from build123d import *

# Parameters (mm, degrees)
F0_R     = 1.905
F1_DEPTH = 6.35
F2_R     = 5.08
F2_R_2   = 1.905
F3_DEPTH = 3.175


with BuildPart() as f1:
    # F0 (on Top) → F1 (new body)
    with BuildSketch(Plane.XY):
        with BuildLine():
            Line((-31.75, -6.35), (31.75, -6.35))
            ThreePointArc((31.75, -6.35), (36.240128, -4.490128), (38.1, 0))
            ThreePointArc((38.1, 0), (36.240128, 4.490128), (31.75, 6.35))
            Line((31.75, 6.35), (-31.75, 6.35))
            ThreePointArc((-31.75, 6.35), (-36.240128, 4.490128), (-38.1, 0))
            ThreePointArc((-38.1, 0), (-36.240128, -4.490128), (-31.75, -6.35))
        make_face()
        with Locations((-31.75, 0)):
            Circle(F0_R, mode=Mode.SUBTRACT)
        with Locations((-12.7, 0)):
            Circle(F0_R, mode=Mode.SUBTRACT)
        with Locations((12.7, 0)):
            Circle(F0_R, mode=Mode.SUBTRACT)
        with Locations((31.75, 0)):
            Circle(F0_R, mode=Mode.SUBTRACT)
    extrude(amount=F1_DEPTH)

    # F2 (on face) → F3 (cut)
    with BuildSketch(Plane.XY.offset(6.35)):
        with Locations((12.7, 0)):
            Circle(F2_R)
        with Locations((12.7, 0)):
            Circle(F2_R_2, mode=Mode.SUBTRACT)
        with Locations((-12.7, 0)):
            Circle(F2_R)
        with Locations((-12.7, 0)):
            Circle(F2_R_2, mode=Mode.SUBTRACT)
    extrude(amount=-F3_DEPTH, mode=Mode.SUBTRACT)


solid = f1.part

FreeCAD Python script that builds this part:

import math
import FreeCAD as App
import Part
import Sketcher

V = App.Vector
Q = App.Units.Quantity

doc = App.newDocument("Part")
params = doc.addObject("Spreadsheet::Sheet", "Params")
for row, (alias, value) in enumerate([
    ("sketch1_diameter", "0.15 in"),
    ("sketch1_radius", "0.25 in"),
    ("sketch1_width", "2.5 in"),
    ("pad1_length", "0.25 in"),
    ("sketch2_diameter", "0.4 in"),
    ("sketch2_diameter2", "0.15 in"),
    ("pocket1_length", "0.125 in"),
], start=1):
    params.set(f"A{row}", alias)
    params.set(f"B{row}", "=" + value)
    params.setAlias(f"B{row}", alias)

body = doc.addObject("PartDesign::Body", "Body")

# Sketch on XY plane
sketch1 = body.newObject("Sketcher::SketchObject", "Sketch")
sketch1.AttachmentSupport = (doc.getObject("XY_Plane"), [""])
sketch1.MapMode = "FlatFace"
sketch1.addGeometry([
    Part.LineSegment(V(-31.8, -6.3, 0), V(31.8, -6.3, 0)),  # 0
    Part.ArcOfCircle(Part.Circle(V(31.7, 0, 0), V(0, 0, 1), 6.4), math.radians(-90), math.radians(0)),  # 1
    Part.ArcOfCircle(Part.Circle(V(31.7, 0, 0), V(0, 0, 1), 6.4), math.radians(0), math.radians(90)),  # 2
    Part.LineSegment(V(31.8, 6.3, 0), V(-31.8, 6.3, 0)),  # 3
    Part.ArcOfCircle(Part.Circle(V(-31.7, 0, 0), V(0, 0, 1), 6.4), math.radians(90), math.radians(180)),  # 4
    Part.ArcOfCircle(Part.Circle(V(-31.7, 0, 0), V(0, 0, 1), 6.4), math.radians(-180), math.radians(-90)),  # 5
    Part.Circle(V(-31.8, 0, 0), V(0, 0, 1), 1.9),  # 6
    Part.Circle(V(-12.7, 0, 0), V(0, 0, 1), 1.9),  # 7
    Part.Circle(V(12.7, 0, 0), V(0, 0, 1), 1.9),  # 8
    Part.Circle(V(31.8, 0, 0), V(0, 0, 1), 1.9),  # 9
], False)
sketch1.addConstraint([
    Sketcher.Constraint("Tangent", 0, 2, 1, 1),
    Sketcher.Constraint("Tangent", 1, 2, 2, 1),
    Sketcher.Constraint("Tangent", 2, 2, 3, 1),
    Sketcher.Constraint("Tangent", 3, 2, 4, 1),
    Sketcher.Constraint("Tangent", 4, 2, 5, 1),
    Sketcher.Constraint("Tangent", 5, 2, 0, 1),
    Sketcher.Constraint("Horizontal", 0),
    Sketcher.Constraint("Horizontal", 3),
    Sketcher.Constraint("Coincident", 6, 3, 4, 3),
    Sketcher.Constraint("Coincident", 9, 3, 1, 3),
    Sketcher.Constraint("Equal", 1, 2),
    Sketcher.Constraint("Equal", 2, 4),
    Sketcher.Constraint("Equal", 6, 7),
    Sketcher.Constraint("Equal", 7, 8),
    Sketcher.Constraint("Equal", 8, 9),
    Sketcher.Constraint("Symmetric", 1, 3, 4, 3, -1, 1),
    Sketcher.Constraint("Symmetric", 7, 3, 8, 3, -1, 1),
    Sketcher.Constraint("PointOnObject", 7, 3, -1),
    Sketcher.Constraint("PointOnObject", 1, 2, -1),
    Sketcher.Constraint("PointOnObject", 4, 2, -1),
    Sketcher.Constraint("Diameter", 6, Q("0.15 in")),
    Sketcher.Constraint("Radius", 1, Q("0.25 in")),
    Sketcher.Constraint("DistanceX", 0, 1, 0, 2, Q("2.5 in")),
    Sketcher.Constraint("DistanceX", 7, 3, 8, 3, Q("1 in")),
])
sketch1.setExpression("Constraints[20]", "Params.sketch1_diameter")
sketch1.setExpression("Constraints[21]", "Params.sketch1_radius")
sketch1.setExpression("Constraints[22]", "Params.sketch1_width")
pad1 = body.newObject("PartDesign::Pad", "Pad")
pad1.Profile = sketch1
pad1.setExpression("Length", "Params.pad1_length")

# Sketch on XY plane
sketch2 = body.newObject("Sketcher::SketchObject", "Sketch001")
sketch2.AttachmentSupport = (doc.getObject("XY_Plane"), [""])
sketch2.MapMode = "FlatFace"
sketch2.AttachmentOffset = App.Placement(V(0, 0, 0.25 * 25.4), App.Rotation())
sketch2.addGeometry([
    Part.Circle(V(12.7, 0, 0), V(0, 0, 1), 5.1),
    Part.Circle(V(12.7, 0, 0), V(0, 0, 1), 1.9),
    Part.Circle(V(-12.7, 0, 0), V(0, 0, 1), 5.1),
    Part.Circle(V(-12.7, 0, 0), V(0, 0, 1), 1.9),
], False)
sketch2.addConstraint([
    Sketcher.Constraint("Coincident", 1, 3, 0, 3),
    Sketcher.Constraint("Coincident", 3, 3, 2, 3),
    Sketcher.Constraint("Equal", 0, 2),
    Sketcher.Constraint("Equal", 1, 3),
    Sketcher.Constraint("Symmetric", 0, 3, 2, 3, -1, 1),
    Sketcher.Constraint("PointOnObject", 0, 3, -1),
    Sketcher.Constraint("Diameter", 0, Q("0.4 in")),
    Sketcher.Constraint("Diameter", 1, Q("0.15 in")),
    Sketcher.Constraint("DistanceX", 2, 3, 0, 3, Q("1 in")),
])
sketch2.setExpression("Constraints[6]", "Params.sketch2_diameter")
sketch2.setExpression("Constraints[7]", "Params.sketch2_diameter2")
pocket1 = body.newObject("PartDesign::Pocket", "Pocket")
pocket1.Profile = sketch2
pocket1.setExpression("Length", "Params.pocket1_length")

doc.recompute()
